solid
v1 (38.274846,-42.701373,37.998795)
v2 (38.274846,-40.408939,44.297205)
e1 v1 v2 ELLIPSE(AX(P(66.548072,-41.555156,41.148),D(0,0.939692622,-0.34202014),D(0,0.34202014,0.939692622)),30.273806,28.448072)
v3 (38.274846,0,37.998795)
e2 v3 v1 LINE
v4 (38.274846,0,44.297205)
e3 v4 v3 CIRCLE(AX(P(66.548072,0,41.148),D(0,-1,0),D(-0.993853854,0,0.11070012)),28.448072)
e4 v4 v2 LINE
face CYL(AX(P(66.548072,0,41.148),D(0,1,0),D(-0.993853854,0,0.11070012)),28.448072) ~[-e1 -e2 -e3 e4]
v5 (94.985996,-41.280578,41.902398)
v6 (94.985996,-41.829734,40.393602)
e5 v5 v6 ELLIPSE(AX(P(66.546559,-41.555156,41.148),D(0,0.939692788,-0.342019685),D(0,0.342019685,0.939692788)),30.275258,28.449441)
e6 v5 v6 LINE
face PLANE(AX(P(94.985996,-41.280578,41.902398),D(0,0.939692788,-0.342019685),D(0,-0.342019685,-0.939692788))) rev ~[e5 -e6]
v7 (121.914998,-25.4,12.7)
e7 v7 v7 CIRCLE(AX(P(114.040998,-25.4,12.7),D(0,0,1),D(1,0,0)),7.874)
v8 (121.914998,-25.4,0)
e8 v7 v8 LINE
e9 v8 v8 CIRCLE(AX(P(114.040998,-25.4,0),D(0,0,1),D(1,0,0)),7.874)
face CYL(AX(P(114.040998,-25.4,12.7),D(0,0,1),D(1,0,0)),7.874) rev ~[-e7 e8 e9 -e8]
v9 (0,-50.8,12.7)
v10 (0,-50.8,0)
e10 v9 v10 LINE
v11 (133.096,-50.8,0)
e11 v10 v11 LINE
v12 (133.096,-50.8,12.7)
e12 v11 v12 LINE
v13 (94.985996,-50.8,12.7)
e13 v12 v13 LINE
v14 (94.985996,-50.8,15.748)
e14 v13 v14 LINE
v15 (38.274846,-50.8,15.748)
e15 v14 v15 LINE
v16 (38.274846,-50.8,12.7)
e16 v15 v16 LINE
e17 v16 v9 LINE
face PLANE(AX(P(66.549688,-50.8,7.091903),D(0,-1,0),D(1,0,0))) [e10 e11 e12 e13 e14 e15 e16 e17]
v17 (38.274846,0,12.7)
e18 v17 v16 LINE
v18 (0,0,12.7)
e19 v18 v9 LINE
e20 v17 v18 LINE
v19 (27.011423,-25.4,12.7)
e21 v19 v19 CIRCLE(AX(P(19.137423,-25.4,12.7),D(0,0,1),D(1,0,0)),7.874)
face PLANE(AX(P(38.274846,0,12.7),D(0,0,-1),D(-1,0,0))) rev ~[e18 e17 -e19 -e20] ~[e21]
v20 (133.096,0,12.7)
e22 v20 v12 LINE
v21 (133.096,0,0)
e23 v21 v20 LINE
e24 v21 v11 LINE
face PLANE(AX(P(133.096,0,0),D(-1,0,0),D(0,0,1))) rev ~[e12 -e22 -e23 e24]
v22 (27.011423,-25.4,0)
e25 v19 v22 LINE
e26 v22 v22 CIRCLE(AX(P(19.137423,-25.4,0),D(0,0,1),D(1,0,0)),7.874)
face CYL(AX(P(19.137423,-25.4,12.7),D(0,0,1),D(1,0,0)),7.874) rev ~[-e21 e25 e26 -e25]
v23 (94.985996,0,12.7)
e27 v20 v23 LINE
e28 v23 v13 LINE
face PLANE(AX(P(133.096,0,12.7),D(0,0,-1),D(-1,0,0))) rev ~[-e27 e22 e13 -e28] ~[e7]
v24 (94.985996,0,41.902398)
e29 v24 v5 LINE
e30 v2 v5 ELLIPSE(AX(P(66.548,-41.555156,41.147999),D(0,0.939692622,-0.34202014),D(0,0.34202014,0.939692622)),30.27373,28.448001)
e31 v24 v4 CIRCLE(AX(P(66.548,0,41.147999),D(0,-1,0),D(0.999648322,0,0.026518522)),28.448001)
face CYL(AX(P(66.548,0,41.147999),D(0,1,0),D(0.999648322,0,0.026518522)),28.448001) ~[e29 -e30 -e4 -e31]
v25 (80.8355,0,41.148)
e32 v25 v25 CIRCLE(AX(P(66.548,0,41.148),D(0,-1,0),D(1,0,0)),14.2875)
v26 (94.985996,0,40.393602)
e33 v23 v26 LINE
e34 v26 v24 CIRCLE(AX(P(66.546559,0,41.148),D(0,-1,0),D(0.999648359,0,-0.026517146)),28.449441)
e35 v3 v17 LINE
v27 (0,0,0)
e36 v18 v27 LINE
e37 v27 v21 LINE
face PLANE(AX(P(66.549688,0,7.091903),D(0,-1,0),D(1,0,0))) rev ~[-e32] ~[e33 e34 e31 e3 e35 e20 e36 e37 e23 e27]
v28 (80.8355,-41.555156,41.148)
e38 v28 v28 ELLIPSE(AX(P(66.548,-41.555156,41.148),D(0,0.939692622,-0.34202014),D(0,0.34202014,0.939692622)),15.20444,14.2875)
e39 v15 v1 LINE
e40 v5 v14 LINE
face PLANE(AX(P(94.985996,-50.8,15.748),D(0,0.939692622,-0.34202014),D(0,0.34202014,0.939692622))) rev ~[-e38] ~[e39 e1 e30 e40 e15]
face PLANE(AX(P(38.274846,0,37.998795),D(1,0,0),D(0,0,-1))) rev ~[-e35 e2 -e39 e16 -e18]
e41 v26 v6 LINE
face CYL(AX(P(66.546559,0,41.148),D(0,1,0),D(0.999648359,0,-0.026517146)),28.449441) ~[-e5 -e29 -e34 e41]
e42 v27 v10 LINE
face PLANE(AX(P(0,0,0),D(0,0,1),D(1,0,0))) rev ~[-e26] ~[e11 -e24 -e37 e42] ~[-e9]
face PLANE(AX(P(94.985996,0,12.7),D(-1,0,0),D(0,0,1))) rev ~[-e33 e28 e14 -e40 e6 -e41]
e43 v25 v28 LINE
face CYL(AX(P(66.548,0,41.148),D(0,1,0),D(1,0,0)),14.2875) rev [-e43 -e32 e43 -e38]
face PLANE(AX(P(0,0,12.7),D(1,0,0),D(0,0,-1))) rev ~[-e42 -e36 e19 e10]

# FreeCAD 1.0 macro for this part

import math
import FreeCAD as App
import Part
import Sketcher
from FreeCAD import Vector
Q = App.Units.Quantity

doc = App.newDocument("Part")
body = doc.addObject("PartDesign::Body", "Body")

# Sketch on XZ plane
sketch1 = body.newObject("Sketcher::SketchObject", "Sketch")
sketch1.AttachmentSupport = (doc.getObject("XZ_Plane"), [""])
sketch1.MapMode = "FlatFace"
sketch1.addGeometry([
    Part.LineSegment(Vector(0, 12.7, 0), Vector(0, 0, 0)),  # 0
    Part.LineSegment(Vector(0, 0, 0), Vector(133.096, 0, 0)),  # 1
    Part.LineSegment(Vector(133.096, 0, 0), Vector(133.096, 12.7, 0)),  # 2
    Part.LineSegment(Vector(133.096, 12.7, 0), Vector(94.985996, 12.7, 0)),  # 3
    Part.LineSegment(Vector(94.985996, 12.7, 0), Vector(94.985996, 40.393602, 0)),  # 4
    Part.ArcOfCircle(Part.Circle(Vector(66.546559, 41.148, 0), Vector(0, 0, 1), 28.449441), math.radians(-1.519499), math.radians(1.519499)),  # 5
    Part.ArcOfCircle(Part.Circle(Vector(66.548, 41.147999, 0), Vector(0, 0, 1), 28.448001), math.radians(1.519578), math.radians(173.644306)),  # 6
    Part.ArcOfCircle(Part.Circle(Vector(66.548072, 41.148, 0), Vector(0, 0, 1), 28.448072), math.radians(173.644324), math.radians(186.355676)),  # 7
    Part.LineSegment(Vector(38.274846, 37.998795, 0), Vector(38.274846, 12.7, 0)),  # 8
    Part.LineSegment(Vector(38.274846, 12.7, 0), Vector(0, 12.7, 0)),  # 9
    Part.Circle(Vector(66.548, 41.148, 0), Vector(0, 0, 1), 14.2875),  # 10
], False)
sketch1.addConstraint([
    Sketcher.Constraint("Coincident", 0, 2, 1, 1),
    Sketcher.Constraint("Coincident", 1, 2, 2, 1),
    Sketcher.Constraint("Coincident", 2, 2, 3, 1),
    Sketcher.Constraint("Coincident", 3, 2, 4, 1),
    Sketcher.Constraint("Coincident", 4, 2, 5, 1),
    Sketcher.Constraint("Coincident", 5, 2, 6, 1),
    Sketcher.Constraint("Coincident", 6, 2, 7, 1),
    Sketcher.Constraint("Coincident", 7, 2, 8, 1),
    Sketcher.Constraint("Coincident", 8, 2, 9, 1),
    Sketcher.Constraint("Coincident", 9, 2, 0, 1),
    Sketcher.Constraint("Vertical", 0),
    Sketcher.Constraint("Horizontal", 1),
    Sketcher.Constraint("Vertical", 2),
    Sketcher.Constraint("Horizontal", 3),
    Sketcher.Constraint("Vertical", 4),
    Sketcher.Constraint("Vertical", 8),
    Sketcher.Constraint("Horizontal", 9),
    Sketcher.Constraint("Coincident", 0, 2, -1, 1),
    Sketcher.Constraint("Coincident", 10, 3, 6, 3),
    Sketcher.Constraint("Radius", 6, Q("1.12 in")),
    Sketcher.Constraint("Diameter", 10, Q("1.125 in")),
    Sketcher.Constraint("DistanceY", 0, 2, 0, 1, Q("0.5 in")),
    Sketcher.Constraint("DistanceY", 2, 1, 2, 2, Q("0.5 in")),
    Sketcher.Constraint("DistanceX", 1, 1, 1, 2, Q("5.24 in")),
    Sketcher.Constraint("DistanceY", -1, 1, 5, 3, Q("1.62 in")),
    Sketcher.Constraint("DistanceX", -1, 1, 6, 3, Q("2.62 in")),
    Sketcher.Constraint("DistanceY", -1, 1, 6, 3, Q("1.62 in")),
    Sketcher.Constraint("DistanceY", -1, 1, 7, 3, Q("1.62 in")),
    Sketcher.Constraint("Radius", 5, Q("28.449441 mm")),
    Sketcher.Constraint("Radius", 7, Q("28.448072 mm")),
    Sketcher.Constraint("DistanceY", 4, 2, 7, 3, Q("0.754398 mm")),
    Sketcher.Constraint("DistanceY", 6, 3, 5, 2, Q("0.754399 mm")),
    Sketcher.Constraint("DistanceX", 9, 2, 9, 1, Q("38.274846 mm")),
    Sketcher.Constraint("DistanceX", 6, 2, 5, 2, Q("56.71115 mm")),
])
pad1 = body.newObject("PartDesign::Pad", "Pad")
pad1.Profile = sketch1
pad1.Length = Q("2 in")

# Sketch on XY plane
sketch2 = body.newObject("Sketcher::SketchObject", "Sketch001")
sketch2.AttachmentSupport = (doc.getObject("XY_Plane"), [""])
sketch2.MapMode = "FlatFace"
sketch2.AttachmentOffset = App.Placement(Vector(0, 0, 0.5 * 25.4), App.Rotation())
sketch2.addGeometry([
    Part.Circle(Vector(114, -25, 0), Vector(0, 0, 1), 8),
    Part.Circle(Vector(19, -25, 0), Vector(0, 0, 1), 8),
], False)
sketch2.addConstraint([
    Sketcher.Constraint("Equal", 0, 1),
    Sketcher.Constraint("Horizontal", 0, 3, 1, 3),
    Sketcher.Constraint("Diameter", 0, Q("0.62 in")),
    Sketcher.Constraint("DistanceY", 0, 3, -1, 1, Q("1 in")),
    Sketcher.Constraint("DistanceX", -1, 1, 0, 3, Q("114.040998 mm")),
    Sketcher.Constraint("DistanceX", -1, 1, 1, 3, Q("19.137423 mm")),
])
pocket1 = body.newObject("PartDesign::Pocket", "Pocket")
pocket1.Profile = sketch2
pocket1.Length = Q("1 in")

# Sketch on YZ plane
sketch3 = body.newObject("Sketcher::SketchObject", "Sketch002")
sketch3.AttachmentSupport = (doc.getObject("YZ_Plane"), [""])
sketch3.MapMode = "FlatFace"
sketch3.AttachmentOffset = App.Placement(Vector(0, 0, 94.985996), App.Rotation())
sketch3.addGeometry([
    Part.LineSegment(Vector(-50.8, 68.6, 0), Vector(-50.8, 15.7, 0)),
    Part.LineSegment(Vector(-50.8, 15.7, 0), Vector(-30, 72.9, 0)),
    Part.LineSegment(Vector(-30, 72.9, 0), Vector(-51.1, 72.9, 0)),
    Part.LineSegment(Vector(-51.1, 72.9, 0), Vector(-50.8, 68.6, 0)),
], False)
sketch3.addConstraint([
    Sketcher.Constraint("Coincident", 0, 2, 1, 1),
    Sketcher.Constraint("Coincident", 1, 2, 2, 1),
    Sketcher.Constraint("Coincident", 2, 2, 3, 1),
    Sketcher.Constraint("Coincident", 3, 2, 0, 1),
    Sketcher.Constraint("Vertical", 0),
    Sketcher.Constraint("Horizontal", 2),
    Sketcher.Constraint("DistanceX", 0, 2, -1, 1, Q("2 in")),
    Sketcher.Constraint("Angle", 1, Q("70 deg")),
    Sketcher.Constraint("DistanceY", -1, 1, 0, 2, Q("0.62 in")),
    Sketcher.Constraint("DistanceX", 2, 2, 2, 1, Q("21.086289 mm")),
    Sketcher.Constraint("Distance", 3, Q("4.265531 mm")),
    Sketcher.Constraint("DistanceY", 0, 2, 0, 1, Q("52.893677 mm")),
])
pocket2 = body.newObject("PartDesign::Pocket", "Pocket001")
pocket2.Profile = sketch3
pocket2.Length = Q("5 in")

# Sketch on YZ plane
sketch4 = body.newObject("Sketcher::SketchObject", "Sketch003")
sketch4.AttachmentSupport = (doc.getObject("YZ_Plane"), [""])
sketch4.MapMode = "FlatFace"
sketch4.AttachmentOffset = App.Placement(Vector(0, 0, 94.985996), App.Rotation())
sketch4.addGeometry([
    Part.LineSegment(Vector(-50.8, 40.4, 0), Vector(-50.8, 41.9, 0)),
    Part.LineSegment(Vector(-50.8, 41.9, 0), Vector(-41.3, 41.9, 0)),
    Part.LineSegment(Vector(-41.3, 41.9, 0), Vector(-41.8, 40.4, 0)),
    Part.LineSegment(Vector(-41.8, 40.4, 0), Vector(-50.8, 40.4, 0)),
], False)
sketch4.addConstraint([
    Sketcher.Constraint("Coincident", 0, 2, 1, 1),
    Sketcher.Constraint("Coincident", 1, 2, 2, 1),
    Sketcher.Constraint("Coincident", 2, 2, 3, 1),
    Sketcher.Constraint("Coincident", 3, 2, 0, 1),
    Sketcher.Constraint("Vertical", 0),
    Sketcher.Constraint("Horizontal", 1),
    Sketcher.Constraint("Horizontal", 3),
    Sketcher.Constraint("DistanceX", 0, 2, -1, 1, Q("2 in")),
    Sketcher.Constraint("DistanceX", 1, 1, 1, 2, Q("9.519422 mm")),
    Sketcher.Constraint("DistanceX", 3, 2, 3, 1, Q("8.970266 mm")),
    Sketcher.Constraint("DistanceY", 0, 1, 0, 2, Q("1.508796 mm")),
    Sketcher.Constraint("DistanceY", -1, 1, 0, 2, Q("41.902398 mm")),
])
pocket3 = body.newObject("PartDesign::Pocket", "Pocket002")
pocket3.Profile = sketch4
pocket3.Length = Q("1 in")
pocket3.Reversed = True

doc.recompute()
